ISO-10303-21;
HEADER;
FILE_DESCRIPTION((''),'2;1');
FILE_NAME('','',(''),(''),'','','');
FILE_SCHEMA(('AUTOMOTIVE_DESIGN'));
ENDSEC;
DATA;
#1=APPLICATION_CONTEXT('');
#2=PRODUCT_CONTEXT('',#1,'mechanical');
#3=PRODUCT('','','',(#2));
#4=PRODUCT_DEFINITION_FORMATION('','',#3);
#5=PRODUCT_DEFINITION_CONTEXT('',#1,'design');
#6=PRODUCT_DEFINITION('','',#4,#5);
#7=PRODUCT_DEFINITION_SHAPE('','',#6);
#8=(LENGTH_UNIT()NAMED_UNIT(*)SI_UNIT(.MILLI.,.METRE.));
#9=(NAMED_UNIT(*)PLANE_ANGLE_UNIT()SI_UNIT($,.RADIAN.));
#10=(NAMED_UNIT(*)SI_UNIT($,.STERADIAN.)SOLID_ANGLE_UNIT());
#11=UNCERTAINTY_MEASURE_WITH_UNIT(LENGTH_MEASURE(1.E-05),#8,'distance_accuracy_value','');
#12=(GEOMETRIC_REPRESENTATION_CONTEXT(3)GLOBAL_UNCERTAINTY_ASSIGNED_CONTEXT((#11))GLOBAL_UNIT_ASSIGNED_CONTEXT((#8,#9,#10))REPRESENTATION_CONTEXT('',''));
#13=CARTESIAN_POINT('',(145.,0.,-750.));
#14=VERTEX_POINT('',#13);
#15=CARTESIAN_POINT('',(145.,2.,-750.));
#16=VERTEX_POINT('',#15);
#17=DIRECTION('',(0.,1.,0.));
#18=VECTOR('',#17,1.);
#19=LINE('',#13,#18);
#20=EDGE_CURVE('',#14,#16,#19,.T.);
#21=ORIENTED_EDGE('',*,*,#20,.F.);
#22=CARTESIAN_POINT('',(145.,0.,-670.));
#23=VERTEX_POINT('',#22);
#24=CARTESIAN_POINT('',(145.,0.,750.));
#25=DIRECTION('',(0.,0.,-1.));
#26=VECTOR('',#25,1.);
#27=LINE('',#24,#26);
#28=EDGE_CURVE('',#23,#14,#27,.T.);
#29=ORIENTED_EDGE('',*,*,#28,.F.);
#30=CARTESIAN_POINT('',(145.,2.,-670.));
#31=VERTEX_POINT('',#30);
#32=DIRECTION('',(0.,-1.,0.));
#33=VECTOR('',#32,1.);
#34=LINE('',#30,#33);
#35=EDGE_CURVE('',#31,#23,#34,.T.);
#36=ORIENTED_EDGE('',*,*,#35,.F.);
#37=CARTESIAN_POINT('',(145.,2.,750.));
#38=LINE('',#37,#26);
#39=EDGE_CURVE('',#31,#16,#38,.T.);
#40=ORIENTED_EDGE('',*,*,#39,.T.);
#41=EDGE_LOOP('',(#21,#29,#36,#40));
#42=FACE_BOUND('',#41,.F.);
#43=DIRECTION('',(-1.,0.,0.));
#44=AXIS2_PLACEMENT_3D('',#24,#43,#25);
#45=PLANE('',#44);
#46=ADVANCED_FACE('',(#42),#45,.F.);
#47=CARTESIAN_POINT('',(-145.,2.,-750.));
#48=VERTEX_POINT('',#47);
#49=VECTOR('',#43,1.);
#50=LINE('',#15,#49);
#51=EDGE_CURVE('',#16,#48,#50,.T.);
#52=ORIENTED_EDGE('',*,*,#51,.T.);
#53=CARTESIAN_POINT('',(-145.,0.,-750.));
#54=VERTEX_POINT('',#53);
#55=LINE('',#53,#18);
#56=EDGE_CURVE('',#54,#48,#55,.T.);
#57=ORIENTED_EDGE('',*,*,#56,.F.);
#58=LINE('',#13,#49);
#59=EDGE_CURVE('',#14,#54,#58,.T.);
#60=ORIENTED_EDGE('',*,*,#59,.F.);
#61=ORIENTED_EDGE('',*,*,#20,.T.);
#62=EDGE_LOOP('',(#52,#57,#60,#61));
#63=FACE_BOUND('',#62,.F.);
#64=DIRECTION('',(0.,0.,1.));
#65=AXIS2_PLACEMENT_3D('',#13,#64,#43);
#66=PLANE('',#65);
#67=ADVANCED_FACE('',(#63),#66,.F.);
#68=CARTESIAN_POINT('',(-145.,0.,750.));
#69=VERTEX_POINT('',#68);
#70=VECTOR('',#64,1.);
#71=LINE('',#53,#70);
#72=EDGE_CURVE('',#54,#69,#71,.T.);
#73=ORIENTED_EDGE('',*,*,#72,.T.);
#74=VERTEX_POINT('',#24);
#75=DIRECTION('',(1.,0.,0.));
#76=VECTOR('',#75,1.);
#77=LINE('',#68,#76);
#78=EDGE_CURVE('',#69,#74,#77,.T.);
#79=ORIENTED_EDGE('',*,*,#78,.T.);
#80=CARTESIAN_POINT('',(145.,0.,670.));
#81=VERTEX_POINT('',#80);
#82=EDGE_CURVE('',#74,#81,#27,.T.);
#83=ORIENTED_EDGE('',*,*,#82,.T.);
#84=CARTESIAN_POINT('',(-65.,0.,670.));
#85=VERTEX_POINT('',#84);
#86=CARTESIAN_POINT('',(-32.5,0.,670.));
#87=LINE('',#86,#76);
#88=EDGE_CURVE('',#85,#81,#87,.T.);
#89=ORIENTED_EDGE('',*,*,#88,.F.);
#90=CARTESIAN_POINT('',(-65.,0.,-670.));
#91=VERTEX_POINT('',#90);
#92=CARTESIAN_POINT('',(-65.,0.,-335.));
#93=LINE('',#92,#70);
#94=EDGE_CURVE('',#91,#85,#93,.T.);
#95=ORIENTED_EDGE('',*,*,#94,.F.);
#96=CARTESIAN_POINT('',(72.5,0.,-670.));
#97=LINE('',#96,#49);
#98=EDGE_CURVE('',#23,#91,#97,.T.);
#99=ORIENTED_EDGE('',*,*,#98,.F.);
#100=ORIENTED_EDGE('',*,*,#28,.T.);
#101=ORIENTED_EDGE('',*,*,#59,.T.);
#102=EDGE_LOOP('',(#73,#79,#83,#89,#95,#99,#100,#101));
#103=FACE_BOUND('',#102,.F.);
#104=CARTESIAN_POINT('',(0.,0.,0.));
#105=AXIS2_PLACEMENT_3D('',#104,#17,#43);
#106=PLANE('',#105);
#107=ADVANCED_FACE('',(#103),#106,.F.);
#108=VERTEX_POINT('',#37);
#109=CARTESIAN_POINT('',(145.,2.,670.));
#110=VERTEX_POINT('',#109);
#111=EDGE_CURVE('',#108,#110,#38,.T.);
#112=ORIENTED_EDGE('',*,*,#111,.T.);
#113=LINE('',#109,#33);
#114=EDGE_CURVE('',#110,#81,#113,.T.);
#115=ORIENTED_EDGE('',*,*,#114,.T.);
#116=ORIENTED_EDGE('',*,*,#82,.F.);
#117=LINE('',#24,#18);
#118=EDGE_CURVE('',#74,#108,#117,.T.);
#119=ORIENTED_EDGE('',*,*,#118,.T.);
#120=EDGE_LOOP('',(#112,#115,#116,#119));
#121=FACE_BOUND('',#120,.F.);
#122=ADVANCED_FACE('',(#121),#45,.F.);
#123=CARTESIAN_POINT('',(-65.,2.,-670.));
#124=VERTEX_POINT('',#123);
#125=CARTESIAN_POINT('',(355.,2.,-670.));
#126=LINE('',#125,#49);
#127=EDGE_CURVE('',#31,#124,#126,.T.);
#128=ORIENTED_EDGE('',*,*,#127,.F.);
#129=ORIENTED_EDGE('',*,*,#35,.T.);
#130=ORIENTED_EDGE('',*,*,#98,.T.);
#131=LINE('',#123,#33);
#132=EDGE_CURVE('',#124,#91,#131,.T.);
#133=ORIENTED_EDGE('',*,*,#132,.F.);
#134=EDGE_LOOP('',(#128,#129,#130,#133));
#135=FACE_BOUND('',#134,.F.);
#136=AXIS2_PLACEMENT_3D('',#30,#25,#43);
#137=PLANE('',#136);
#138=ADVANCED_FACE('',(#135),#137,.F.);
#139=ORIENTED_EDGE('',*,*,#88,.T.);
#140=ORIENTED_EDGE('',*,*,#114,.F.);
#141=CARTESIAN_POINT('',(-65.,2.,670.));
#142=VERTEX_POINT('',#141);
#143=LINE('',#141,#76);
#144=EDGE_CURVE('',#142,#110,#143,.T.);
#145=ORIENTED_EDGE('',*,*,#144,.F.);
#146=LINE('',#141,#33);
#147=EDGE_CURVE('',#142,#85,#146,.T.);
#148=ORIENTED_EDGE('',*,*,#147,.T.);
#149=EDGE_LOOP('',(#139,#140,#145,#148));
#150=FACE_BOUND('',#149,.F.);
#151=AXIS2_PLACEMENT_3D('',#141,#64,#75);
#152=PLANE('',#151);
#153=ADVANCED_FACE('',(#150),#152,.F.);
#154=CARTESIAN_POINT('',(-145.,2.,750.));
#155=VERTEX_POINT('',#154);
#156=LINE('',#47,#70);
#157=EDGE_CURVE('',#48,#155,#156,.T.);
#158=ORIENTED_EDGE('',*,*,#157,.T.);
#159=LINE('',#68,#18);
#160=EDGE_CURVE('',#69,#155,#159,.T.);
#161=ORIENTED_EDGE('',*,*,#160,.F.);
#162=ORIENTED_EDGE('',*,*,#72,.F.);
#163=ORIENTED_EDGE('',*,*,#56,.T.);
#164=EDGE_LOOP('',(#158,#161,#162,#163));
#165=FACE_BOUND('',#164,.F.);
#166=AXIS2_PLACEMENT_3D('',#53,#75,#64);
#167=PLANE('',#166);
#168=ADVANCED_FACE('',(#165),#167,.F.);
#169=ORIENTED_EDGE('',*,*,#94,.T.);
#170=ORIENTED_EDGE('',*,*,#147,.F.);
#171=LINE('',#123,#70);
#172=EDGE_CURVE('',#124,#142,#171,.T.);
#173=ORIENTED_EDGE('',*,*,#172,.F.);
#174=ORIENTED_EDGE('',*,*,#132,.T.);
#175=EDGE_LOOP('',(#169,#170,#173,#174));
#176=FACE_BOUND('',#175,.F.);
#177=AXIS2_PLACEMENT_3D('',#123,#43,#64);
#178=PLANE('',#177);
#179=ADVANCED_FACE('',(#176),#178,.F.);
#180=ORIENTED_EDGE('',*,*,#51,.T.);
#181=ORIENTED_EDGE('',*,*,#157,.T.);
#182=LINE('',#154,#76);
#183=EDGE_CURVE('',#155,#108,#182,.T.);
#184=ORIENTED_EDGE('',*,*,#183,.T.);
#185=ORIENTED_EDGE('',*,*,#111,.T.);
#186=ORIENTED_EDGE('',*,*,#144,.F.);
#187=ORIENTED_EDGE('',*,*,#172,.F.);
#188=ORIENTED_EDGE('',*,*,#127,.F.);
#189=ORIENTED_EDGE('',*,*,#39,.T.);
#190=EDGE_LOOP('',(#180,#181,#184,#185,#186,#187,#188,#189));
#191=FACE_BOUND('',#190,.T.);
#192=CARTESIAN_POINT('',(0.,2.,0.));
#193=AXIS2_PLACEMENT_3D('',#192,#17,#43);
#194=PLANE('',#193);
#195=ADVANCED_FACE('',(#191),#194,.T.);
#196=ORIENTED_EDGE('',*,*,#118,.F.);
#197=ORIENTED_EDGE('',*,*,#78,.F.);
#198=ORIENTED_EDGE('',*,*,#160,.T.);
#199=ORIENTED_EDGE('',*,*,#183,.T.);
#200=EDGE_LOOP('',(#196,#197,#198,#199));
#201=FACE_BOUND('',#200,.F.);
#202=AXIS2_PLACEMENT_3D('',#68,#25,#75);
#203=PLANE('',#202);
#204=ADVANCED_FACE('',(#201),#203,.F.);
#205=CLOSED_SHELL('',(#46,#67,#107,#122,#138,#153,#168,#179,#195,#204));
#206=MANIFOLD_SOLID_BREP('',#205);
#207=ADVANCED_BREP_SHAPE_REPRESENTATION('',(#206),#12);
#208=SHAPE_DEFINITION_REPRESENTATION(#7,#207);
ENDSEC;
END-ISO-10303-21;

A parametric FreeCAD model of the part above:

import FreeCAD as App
import Part
import Sketcher

V = App.Vector
Q = App.Units.Quantity

doc = App.newDocument("Part")
body = doc.addObject("PartDesign::Body", "Body")

# Sketch on XZ plane
sketch1 = body.newObject("Sketcher::SketchObject", "Sketch")
sketch1.AttachmentSupport = (doc.getObject("XZ_Plane"), [""])
sketch1.MapMode = "FlatFace"
sketch1.addGeometry([
    Part.LineSegment(V(145, 750, 0), V(145, -750, 0)),
    Part.LineSegment(V(145, -750, 0), V(-145, -750, 0)),
    Part.LineSegment(V(-145, -750, 0), V(-145, 750, 0)),
    Part.LineSegment(V(-145, 750, 0), V(145, 750, 0)),
], False)
sketch1.addConstraint([
    Sketcher.Constraint("Coincident", 0, 2, 1, 1),
    Sketcher.Constraint("Coincident", 1, 2, 2, 1),
    Sketcher.Constraint("Coincident", 2, 2, 3, 1),
    Sketcher.Constraint("Coincident", 3, 2, 0, 1),
    Sketcher.Constraint("Vertical", 0),
    Sketcher.Constraint("Horizontal", 1),
    Sketcher.Constraint("Vertical", 2),
    Sketcher.Constraint("Horizontal", 3),
    Sketcher.Constraint("Symmetric", 0, 2, 2, 2, -1, 1),
    Sketcher.Constraint("DistanceX", 1, 2, 1, 1, Q("290 mm")),
    Sketcher.Constraint("DistanceY", 0, 2, 0, 1, Q("1500 mm")),
])
pad1 = body.newObject("PartDesign::Pad", "Pad")
pad1.Profile = sketch1
pad1.Length = 2
pad1.Reversed = True

# Sketch on XZ plane
sketch2 = body.newObject("Sketcher::SketchObject", "Sketch001")
sketch2.AttachmentSupport = (doc.getObject("XZ_Plane"), [""])
sketch2.MapMode = "FlatFace"
sketch2.AttachmentOffset = App.Placement(V(0, 0, -2), App.Rotation())
sketch2.addGeometry([
    Part.LineSegment(V(145, 670, 0), V(145, -670, 0)),
    Part.LineSegment(V(145, -670, 0), V(-65, -670, 0)),
    Part.LineSegment(V(-65, -670, 0), V(-65, 670, 0)),
    Part.LineSegment(V(-65, 670, 0), V(145, 670, 0)),
], False)
sketch2.addConstraint([
    Sketcher.Constraint("Coincident", 0, 2, 1, 1),
    Sketcher.Constraint("Coincident", 1, 2, 2, 1),
    Sketcher.Constraint("Coincident", 2, 2, 3, 1),
    Sketcher.Constraint("Coincident", 3, 2, 0, 1),
    Sketcher.Constraint("Vertical", 0),
    Sketcher.Constraint("Horizontal", 1),
    Sketcher.Constraint("Vertical", 2),
    Sketcher.Constraint("Horizontal", 3),
    Sketcher.Constraint("DistanceX", 1, 2, 1, 1, Q("210 mm")),
    Sketcher.Constraint("DistanceY", 0, 2, 0, 1, Q("1340 mm")),
    Sketcher.Constraint("DistanceX", -1, 1, 0, 2, Q("145 mm")),
    Sketcher.Constraint("DistanceY", 0, 2, -1, 1, Q("670 mm")),
])
pocket1 = body.newObject("PartDesign::Pocket", "Pocket")
pocket1.Profile = sketch2
pocket1.Length = 10
pocket1.Reversed = True

doc.recompute()
